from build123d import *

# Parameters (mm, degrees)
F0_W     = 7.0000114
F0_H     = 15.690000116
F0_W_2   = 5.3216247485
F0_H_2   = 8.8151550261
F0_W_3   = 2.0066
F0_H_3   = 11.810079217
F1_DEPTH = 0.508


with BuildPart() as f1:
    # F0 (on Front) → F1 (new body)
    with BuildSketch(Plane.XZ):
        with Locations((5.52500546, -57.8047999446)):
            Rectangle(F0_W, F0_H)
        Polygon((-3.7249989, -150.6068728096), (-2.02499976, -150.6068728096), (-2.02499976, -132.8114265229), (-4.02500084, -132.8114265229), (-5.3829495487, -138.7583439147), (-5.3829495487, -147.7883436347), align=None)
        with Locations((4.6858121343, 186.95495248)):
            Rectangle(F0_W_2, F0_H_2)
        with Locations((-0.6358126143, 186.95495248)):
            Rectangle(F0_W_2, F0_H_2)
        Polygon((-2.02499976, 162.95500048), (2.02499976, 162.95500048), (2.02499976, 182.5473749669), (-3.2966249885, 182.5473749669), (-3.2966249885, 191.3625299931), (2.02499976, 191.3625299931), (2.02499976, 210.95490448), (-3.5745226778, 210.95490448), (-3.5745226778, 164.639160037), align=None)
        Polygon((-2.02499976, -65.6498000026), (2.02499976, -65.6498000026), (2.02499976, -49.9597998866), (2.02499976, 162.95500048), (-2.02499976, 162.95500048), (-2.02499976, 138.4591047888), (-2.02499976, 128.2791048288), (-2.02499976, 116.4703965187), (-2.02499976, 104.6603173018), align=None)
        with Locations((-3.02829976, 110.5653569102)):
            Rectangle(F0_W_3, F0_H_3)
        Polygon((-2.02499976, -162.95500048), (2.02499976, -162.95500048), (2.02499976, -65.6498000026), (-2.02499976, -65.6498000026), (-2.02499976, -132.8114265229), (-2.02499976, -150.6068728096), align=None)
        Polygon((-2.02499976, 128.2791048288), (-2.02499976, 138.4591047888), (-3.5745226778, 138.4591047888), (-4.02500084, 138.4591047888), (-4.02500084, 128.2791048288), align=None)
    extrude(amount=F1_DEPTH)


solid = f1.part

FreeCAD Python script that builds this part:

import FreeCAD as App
import Part
import Sketcher

V = App.Vector
Q = App.Units.Quantity


def add_polygon(sketch, points):
    """Adds a closed chain of lines whose ends are joined by coincident constraints."""
    first, n = sketch.GeometryCount, len(points)
    for a, b in zip(points, points[1:] + points[:1]):
        sketch.addGeometry(Part.LineSegment(App.Vector(*a, 0), App.Vector(*b, 0)), False)
    for i in range(n):
        sketch.addConstraint(Sketcher.Constraint("Coincident", first + i, 2, first + (i + 1) % n, 1))

doc = App.newDocument("Part")
body = doc.addObject("PartDesign::Body", "Body")

# Sketch on XZ plane
sketch1 = doc.addObject("Sketcher::SketchObject", "Sketch")
body.addObject(sketch1)
sketch1.AttachmentSupport = (doc.XZ_Plane, [""])
sketch1.MapMode = "FlatFace"
add_polygon(sketch1, [(9.025011, -65.6498), (9.025011, -49.9598), (2.025, -49.9598), (2.025, 182.547375), (7.346625, 182.547375), (7.346625, 191.36253), (2.025, 191.36253), (2.025, 210.954904), (-3.574523, 210.954904), (-3.574523, 164.63916), (-2.025, 162.955), (-2.025, 138.459105), (-4.025001, 138.459105), (-4.025001, 128.279105), (-2.025, 128.279105), (-2.025, 116.470397), (-4.0316, 116.470397), (-4.0316, 104.660317), (-2.025, 104.660317), (-2.025, -132.811427), (-4.025001, -132.811427), (-5.38295, -138.758344), (-5.38295, -147.788344), (-3.724999, -150.606873), (-2.025, -150.606873), (-2.025, -162.955), (2.025, -162.955), (2.025, -65.6498)])  # lines 0-27
sketch1.addConstraint(Sketcher.Constraint("Vertical", 0))
sketch1.addConstraint(Sketcher.Constraint("Horizontal", 1))
sketch1.addConstraint(Sketcher.Constraint("Vertical", 2))
sketch1.addConstraint(Sketcher.Constraint("Horizontal", 3))
sketch1.addConstraint(Sketcher.Constraint("Vertical", 4))
sketch1.addConstraint(Sketcher.Constraint("Horizontal", 5))
sketch1.addConstraint(Sketcher.Constraint("Vertical", 6))
sketch1.addConstraint(Sketcher.Constraint("Horizontal", 7))
sketch1.addConstraint(Sketcher.Constraint("Vertical", 8))
sketch1.addConstraint(Sketcher.Constraint("Vertical", 10))
sketch1.addConstraint(Sketcher.Constraint("Horizontal", 11))
sketch1.addConstraint(Sketcher.Constraint("Vertical", 12))
sketch1.addConstraint(Sketcher.Constraint("Horizontal", 13))
sketch1.addConstraint(Sketcher.Constraint("Vertical", 14))
sketch1.addConstraint(Sketcher.Constraint("Horizontal", 15))
sketch1.addConstraint(Sketcher.Constraint("Vertical", 16))
sketch1.addConstraint(Sketcher.Constraint("Horizontal", 17))
sketch1.addConstraint(Sketcher.Constraint("Vertical", 18))
sketch1.addConstraint(Sketcher.Constraint("Horizontal", 19))
sketch1.addConstraint(Sketcher.Constraint("Vertical", 21))
sketch1.addConstraint(Sketcher.Constraint("Horizontal", 23))
sketch1.addConstraint(Sketcher.Constraint("Vertical", 24))
sketch1.addConstraint(Sketcher.Constraint("Horizontal", 25))
sketch1.addConstraint(Sketcher.Constraint("Vertical", 26))
sketch1.addConstraint(Sketcher.Constraint("Horizontal", 27))
sketch1.addConstraint(Sketcher.Constraint("Symmetric", 9, 2, 25, 2, -1, 1))
sketch1.addConstraint(Sketcher.Constraint("Vertical", 2, 2, 5, 2))
sketch1.addConstraint(Sketcher.Constraint("Vertical", 10, 2, 13, 2))
sketch1.addConstraint(Sketcher.Constraint("Vertical", 14, 2, 17, 2))
sketch1.addConstraint(Sketcher.Constraint("Vertical", 12, 2, 19, 2))
sketch1.addConstraint(Sketcher.Constraint("Vertical", 18, 2, 23, 2))
sketch1.addConstraint(Sketcher.Constraint("Vertical", 6, 2, 25, 2))
sketch1.addConstraint(Sketcher.Constraint("DistanceX", 11, 2, 11, 1, Q("2.000001 mm")))
sketch1.addConstraint(Sketcher.Constraint("DistanceX", 23, 1, 23, 2, Q("1.699999 mm")))
sketch1.addConstraint(Sketcher.Constraint("DistanceX", 25, 1, 25, 2, Q("4.05 mm")))
sketch1.addConstraint(Sketcher.Constraint("DistanceY", 0, 1, 0, 2, Q("15.69 mm")))
sketch1.addConstraint(Sketcher.Constraint("DistanceY", 12, 2, 12, 1, Q("10.18 mm")))
sketch1.addConstraint(Sketcher.Constraint("DistanceY", 21, 2, 21, 1, Q("9.03 mm")))
sketch1.addConstraint(Sketcher.Constraint("Distance", 22, Q("3.270001 mm")))
sketch1.addConstraint(Sketcher.Constraint("DistanceX", 15, 2, 15, 1, Q("2.0066 mm")))
sketch1.addConstraint(Sketcher.Constraint("DistanceY", 26, 1, 26, 2, Q("97.3052 mm")))
sketch1.addConstraint(Sketcher.Constraint("DistanceY", -1, 1, 9, 2, Q("162.955 mm")))
sketch1.addConstraint(Sketcher.Constraint("DistanceX", 1, 2, 1, 1, Q("7.000011 mm")))
sketch1.addConstraint(Sketcher.Constraint("DistanceY", 14, 2, 14, 1, Q("11.808708 mm")))
sketch1.addConstraint(Sketcher.Constraint("DistanceY", 16, 2, 16, 1, Q("11.810079 mm")))
sketch1.addConstraint(Sketcher.Constraint("Distance", 9, Q("2.28854 mm")))
sketch1.addConstraint(Sketcher.Constraint("DistanceX", 3, 1, 3, 2, Q("5.321625 mm")))
sketch1.addConstraint(Sketcher.Constraint("DistanceX", 7, 2, 7, 1, Q("5.599522 mm")))
sketch1.addConstraint(Sketcher.Constraint("DistanceY", 2, 1, 2, 2, Q("232.507175 mm")))
sketch1.addConstraint(Sketcher.Constraint("DistanceY", 4, 1, 4, 2, Q("8.815155 mm")))
sketch1.addConstraint(Sketcher.Constraint("DistanceY", 6, 1, 6, 2, Q("19.592374 mm")))
sketch1.addConstraint(Sketcher.Constraint("DistanceY", 10, 2, 10, 1, Q("24.495896 mm")))
sketch1.addConstraint(Sketcher.Constraint("DistanceY", 18, 2, 18, 1, Q("237.471744 mm")))
sketch1.addConstraint(Sketcher.Constraint("DistanceY", 24, 2, 24, 1, Q("12.348128 mm")))
sketch1.addConstraint(Sketcher.Constraint("DistanceX", 20, 2, -1, 1, Q("5.38295 mm")))
pad1 = doc.addObject("PartDesign::Pad", "Pad")
body.addObject(pad1)
pad1.Profile = sketch1
pad1.Length = 0.508

doc.recompute()
